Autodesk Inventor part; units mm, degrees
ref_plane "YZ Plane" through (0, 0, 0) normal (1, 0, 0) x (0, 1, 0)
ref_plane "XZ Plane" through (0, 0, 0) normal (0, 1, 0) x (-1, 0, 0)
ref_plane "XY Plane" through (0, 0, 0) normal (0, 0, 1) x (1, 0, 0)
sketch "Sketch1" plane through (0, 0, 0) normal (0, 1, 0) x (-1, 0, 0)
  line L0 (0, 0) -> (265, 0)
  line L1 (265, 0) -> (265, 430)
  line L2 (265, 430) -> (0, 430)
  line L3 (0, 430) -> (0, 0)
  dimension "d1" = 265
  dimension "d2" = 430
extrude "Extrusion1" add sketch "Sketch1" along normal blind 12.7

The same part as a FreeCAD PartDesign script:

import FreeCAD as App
import Part
import Sketcher

V = App.Vector


def add_polygon(sketch, points):
    """Adds a closed chain of lines whose ends are joined by coincident constraints."""
    first, n = sketch.GeometryCount, len(points)
    for a, b in zip(points, points[1:] + points[:1]):
        sketch.addGeometry(Part.LineSegment(App.Vector(*a, 0), App.Vector(*b, 0)), False)
    for i in range(n):
        sketch.addConstraint(Sketcher.Constraint("Coincident", first + i, 2, first + (i + 1) % n, 1))

doc = App.newDocument("Part")
body = doc.addObject("PartDesign::Body", "Body")

# Sketch on XZ plane
sketch1 = doc.addObject("Sketcher::SketchObject", "Sketch")
body.addObject(sketch1)
sketch1.AttachmentSupport = (doc.XZ_Plane, [""])
sketch1.MapMode = "FlatFace"
add_polygon(sketch1, [(0, 430), (0, 0), (-265, 0), (-265, 430)])  # lines 0-3
sketch1.addConstraint([
    Sketcher.Constraint("Vertical", 0),
    Sketcher.Constraint("Horizontal", 1),
    Sketcher.Constraint("Vertical", 2),
    Sketcher.Constraint("Horizontal", 3),
    Sketcher.Constraint("Coincident", 0, 2, -1, 1),
    Sketcher.Constraint("DistanceX", 1, 2, 1, 1, 265.0),
    Sketcher.Constraint("DistanceY", 0, 2, 0, 1, 430.0),
])
pad1 = doc.addObject("PartDesign::Pad", "Pad")
body.addObject(pad1)
pad1.Profile = sketch1
pad1.Length = 12.7
pad1.Reversed = True

doc.recompute()
